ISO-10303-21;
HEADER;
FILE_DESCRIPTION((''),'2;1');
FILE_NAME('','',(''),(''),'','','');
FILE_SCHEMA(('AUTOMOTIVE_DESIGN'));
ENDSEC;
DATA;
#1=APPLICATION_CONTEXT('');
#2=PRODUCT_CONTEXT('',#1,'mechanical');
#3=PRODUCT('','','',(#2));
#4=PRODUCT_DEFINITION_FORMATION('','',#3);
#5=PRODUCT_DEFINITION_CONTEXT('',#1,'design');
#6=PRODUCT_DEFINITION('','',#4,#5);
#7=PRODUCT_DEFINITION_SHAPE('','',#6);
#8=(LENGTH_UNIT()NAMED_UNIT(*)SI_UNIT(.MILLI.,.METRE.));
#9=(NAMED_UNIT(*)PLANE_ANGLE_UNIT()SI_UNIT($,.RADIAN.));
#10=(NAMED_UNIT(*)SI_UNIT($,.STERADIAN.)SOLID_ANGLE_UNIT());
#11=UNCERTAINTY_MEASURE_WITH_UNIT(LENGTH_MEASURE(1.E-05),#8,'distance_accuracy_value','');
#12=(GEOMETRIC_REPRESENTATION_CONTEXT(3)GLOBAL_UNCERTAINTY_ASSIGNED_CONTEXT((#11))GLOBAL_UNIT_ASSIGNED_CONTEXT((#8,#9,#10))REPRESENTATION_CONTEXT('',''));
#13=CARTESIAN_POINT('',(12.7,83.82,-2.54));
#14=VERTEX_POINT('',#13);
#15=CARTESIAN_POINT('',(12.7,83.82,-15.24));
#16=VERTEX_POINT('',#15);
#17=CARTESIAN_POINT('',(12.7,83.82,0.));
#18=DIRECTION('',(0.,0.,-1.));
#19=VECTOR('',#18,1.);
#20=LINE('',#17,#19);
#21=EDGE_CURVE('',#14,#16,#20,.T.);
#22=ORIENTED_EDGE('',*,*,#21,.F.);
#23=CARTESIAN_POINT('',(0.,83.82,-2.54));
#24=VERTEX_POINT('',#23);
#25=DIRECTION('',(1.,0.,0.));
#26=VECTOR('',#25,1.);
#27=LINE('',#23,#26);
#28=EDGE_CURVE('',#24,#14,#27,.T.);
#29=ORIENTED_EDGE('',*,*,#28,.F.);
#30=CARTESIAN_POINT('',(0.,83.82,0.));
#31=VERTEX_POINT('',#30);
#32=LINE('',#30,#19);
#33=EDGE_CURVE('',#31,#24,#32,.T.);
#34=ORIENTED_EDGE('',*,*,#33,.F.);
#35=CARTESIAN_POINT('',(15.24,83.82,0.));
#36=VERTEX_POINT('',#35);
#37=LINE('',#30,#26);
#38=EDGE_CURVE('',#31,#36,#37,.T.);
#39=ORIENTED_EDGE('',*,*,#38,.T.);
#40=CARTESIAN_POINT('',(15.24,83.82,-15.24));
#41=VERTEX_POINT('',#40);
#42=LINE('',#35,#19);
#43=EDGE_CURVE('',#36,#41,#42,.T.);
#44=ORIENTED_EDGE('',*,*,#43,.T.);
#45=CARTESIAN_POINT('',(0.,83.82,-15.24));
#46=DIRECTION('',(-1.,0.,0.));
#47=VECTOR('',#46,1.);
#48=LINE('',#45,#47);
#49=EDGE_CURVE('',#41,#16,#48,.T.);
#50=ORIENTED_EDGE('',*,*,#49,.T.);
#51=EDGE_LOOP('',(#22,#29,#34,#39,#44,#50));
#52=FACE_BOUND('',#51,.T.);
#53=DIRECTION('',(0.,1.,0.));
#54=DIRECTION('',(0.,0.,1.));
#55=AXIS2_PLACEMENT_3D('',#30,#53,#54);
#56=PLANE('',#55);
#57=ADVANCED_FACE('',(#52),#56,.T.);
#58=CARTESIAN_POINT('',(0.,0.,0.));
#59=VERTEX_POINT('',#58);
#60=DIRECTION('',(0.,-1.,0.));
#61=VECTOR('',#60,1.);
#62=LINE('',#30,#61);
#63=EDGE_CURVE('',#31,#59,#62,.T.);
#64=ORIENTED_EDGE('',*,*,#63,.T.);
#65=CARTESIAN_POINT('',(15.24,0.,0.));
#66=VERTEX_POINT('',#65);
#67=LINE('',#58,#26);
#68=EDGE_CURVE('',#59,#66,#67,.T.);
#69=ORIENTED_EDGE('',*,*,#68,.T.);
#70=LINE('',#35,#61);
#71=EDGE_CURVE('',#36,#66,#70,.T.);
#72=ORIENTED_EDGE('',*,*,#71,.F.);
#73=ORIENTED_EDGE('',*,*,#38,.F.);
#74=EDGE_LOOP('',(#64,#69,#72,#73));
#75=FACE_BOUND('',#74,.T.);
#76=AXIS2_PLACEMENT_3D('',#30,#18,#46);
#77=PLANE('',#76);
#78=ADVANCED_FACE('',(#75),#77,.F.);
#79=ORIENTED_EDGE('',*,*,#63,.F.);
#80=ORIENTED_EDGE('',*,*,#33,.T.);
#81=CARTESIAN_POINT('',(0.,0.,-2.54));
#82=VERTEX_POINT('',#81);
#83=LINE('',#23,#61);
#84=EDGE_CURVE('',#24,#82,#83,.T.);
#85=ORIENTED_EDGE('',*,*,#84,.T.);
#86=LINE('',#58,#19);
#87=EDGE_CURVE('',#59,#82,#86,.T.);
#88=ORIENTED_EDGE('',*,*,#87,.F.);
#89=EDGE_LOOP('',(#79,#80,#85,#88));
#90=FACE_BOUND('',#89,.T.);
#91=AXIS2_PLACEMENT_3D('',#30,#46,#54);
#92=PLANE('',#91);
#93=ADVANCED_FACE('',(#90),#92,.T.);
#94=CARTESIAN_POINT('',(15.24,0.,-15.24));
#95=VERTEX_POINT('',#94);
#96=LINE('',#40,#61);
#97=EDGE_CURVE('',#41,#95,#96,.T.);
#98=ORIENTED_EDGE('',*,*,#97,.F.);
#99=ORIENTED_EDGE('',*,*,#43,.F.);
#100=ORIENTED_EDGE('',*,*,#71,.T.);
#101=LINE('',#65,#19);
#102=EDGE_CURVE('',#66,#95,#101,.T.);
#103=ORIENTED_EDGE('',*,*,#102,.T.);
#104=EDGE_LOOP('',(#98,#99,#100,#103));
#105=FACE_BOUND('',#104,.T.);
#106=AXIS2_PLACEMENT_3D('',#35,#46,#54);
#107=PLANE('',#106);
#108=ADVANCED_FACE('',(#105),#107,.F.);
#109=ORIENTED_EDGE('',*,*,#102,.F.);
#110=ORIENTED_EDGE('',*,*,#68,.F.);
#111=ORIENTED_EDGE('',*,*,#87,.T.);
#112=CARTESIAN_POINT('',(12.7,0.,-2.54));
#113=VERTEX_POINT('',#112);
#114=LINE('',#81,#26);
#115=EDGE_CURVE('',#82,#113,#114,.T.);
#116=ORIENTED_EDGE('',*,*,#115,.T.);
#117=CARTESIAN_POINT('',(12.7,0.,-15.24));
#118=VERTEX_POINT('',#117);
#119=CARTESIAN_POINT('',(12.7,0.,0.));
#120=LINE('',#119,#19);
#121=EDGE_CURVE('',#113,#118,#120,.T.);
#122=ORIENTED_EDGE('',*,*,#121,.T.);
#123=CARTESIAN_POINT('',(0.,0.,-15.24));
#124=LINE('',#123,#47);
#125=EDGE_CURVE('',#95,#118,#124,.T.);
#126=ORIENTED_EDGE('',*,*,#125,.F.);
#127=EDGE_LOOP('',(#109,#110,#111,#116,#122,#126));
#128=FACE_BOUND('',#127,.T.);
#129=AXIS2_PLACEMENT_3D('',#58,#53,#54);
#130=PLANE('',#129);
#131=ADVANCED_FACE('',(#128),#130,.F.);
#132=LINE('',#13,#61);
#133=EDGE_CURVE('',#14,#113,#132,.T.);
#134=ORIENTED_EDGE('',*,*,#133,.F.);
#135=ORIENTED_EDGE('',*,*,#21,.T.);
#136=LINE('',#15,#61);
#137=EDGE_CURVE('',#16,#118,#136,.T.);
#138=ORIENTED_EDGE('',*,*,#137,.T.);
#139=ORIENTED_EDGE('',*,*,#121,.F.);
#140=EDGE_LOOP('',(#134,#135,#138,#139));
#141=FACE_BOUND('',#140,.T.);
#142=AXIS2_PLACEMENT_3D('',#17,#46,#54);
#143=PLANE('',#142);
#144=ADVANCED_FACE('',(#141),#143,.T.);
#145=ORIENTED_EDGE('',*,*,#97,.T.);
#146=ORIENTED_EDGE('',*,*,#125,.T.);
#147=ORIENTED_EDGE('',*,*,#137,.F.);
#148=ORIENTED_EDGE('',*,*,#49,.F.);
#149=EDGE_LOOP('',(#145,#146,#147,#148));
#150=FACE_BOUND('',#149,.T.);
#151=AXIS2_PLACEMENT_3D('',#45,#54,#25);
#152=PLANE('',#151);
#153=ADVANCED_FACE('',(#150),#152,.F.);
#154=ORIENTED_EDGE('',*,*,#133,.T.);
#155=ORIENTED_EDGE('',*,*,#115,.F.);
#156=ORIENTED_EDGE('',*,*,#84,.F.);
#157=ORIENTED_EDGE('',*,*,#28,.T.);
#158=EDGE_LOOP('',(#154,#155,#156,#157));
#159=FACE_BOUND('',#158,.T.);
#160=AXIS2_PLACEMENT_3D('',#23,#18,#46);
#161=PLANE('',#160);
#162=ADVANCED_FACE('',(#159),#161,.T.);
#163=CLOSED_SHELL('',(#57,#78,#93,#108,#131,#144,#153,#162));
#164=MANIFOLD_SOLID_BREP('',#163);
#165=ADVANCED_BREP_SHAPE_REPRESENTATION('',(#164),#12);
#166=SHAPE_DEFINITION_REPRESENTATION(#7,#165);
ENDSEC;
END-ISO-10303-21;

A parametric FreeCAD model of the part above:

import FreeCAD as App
import Part
import Sketcher

V = App.Vector
Q = App.Units.Quantity


def add_polygon(sketch, points):
    """Adds a closed chain of lines whose ends are joined by coincident constraints."""
    first, n = sketch.GeometryCount, len(points)
    for a, b in zip(points, points[1:] + points[:1]):
        sketch.addGeometry(Part.LineSegment(App.Vector(*a, 0), App.Vector(*b, 0)), False)
    for i in range(n):
        sketch.addConstraint(Sketcher.Constraint("Coincident", first + i, 2, first + (i + 1) % n, 1))

doc = App.newDocument("Part")
params = doc.addObject("Spreadsheet::Sheet", "Params")
for row, (alias, value) in enumerate([
    ("sketch1_width", "0.6 in"),
    ("sketch1_width2", "0.1 in"),
    ("pad1_length", "3.3 in"),
], start=1):
    params.set(f"A{row}", alias)
    params.set(f"B{row}", "=" + value)
    params.setAlias(f"B{row}", alias)

body = doc.addObject("PartDesign::Body", "Body")

sketch1 = doc.addObject("Sketcher::SketchObject", "Sketch")
body.addObject(sketch1)
sketch1.AttachmentSupport = (doc.XZ_Plane, [""])
sketch1.MapMode = "FlatFace"
add_polygon(sketch1, [(0, -2.54), (0, 0), (15.24, 0), (15.24, -15.24), (12.7, -15.24), (12.7, -2.54)])
sketch1.addConstraint(Sketcher.Constraint("Vertical", 0))
sketch1.addConstraint(Sketcher.Constraint("Horizontal", 1))
sketch1.addConstraint(Sketcher.Constraint("Vertical", 2))
sketch1.addConstraint(Sketcher.Constraint("Horizontal", 3))
sketch1.addConstraint(Sketcher.Constraint("Vertical", 4))
sketch1.addConstraint(Sketcher.Constraint("Horizontal", 5))
sketch1.addConstraint(Sketcher.Constraint("Coincident", 0, 2, -1, 1))
sketch1.addConstraint(Sketcher.Constraint("Equal", 3, 0))
sketch1.addConstraint(Sketcher.Constraint("Equal", 1, 2))
sketch1.addConstraint(Sketcher.Constraint("DistanceX", 1, 1, 1, 2, Q("0.6 in")))
sketch1.addConstraint(Sketcher.Constraint("DistanceX", 3, 2, 3, 1, Q("0.1 in")))
sketch1.setExpression("Constraints[15]", "Params.sketch1_width")
sketch1.setExpression("Constraints[16]", "Params.sketch1_width2")
pad1 = doc.addObject("PartDesign::Pad", "Pad")
body.addObject(pad1)
pad1.Profile = sketch1
pad1.setExpression("Length", "Params.pad1_length")
pad1.Reversed = True

doc.recompute()
